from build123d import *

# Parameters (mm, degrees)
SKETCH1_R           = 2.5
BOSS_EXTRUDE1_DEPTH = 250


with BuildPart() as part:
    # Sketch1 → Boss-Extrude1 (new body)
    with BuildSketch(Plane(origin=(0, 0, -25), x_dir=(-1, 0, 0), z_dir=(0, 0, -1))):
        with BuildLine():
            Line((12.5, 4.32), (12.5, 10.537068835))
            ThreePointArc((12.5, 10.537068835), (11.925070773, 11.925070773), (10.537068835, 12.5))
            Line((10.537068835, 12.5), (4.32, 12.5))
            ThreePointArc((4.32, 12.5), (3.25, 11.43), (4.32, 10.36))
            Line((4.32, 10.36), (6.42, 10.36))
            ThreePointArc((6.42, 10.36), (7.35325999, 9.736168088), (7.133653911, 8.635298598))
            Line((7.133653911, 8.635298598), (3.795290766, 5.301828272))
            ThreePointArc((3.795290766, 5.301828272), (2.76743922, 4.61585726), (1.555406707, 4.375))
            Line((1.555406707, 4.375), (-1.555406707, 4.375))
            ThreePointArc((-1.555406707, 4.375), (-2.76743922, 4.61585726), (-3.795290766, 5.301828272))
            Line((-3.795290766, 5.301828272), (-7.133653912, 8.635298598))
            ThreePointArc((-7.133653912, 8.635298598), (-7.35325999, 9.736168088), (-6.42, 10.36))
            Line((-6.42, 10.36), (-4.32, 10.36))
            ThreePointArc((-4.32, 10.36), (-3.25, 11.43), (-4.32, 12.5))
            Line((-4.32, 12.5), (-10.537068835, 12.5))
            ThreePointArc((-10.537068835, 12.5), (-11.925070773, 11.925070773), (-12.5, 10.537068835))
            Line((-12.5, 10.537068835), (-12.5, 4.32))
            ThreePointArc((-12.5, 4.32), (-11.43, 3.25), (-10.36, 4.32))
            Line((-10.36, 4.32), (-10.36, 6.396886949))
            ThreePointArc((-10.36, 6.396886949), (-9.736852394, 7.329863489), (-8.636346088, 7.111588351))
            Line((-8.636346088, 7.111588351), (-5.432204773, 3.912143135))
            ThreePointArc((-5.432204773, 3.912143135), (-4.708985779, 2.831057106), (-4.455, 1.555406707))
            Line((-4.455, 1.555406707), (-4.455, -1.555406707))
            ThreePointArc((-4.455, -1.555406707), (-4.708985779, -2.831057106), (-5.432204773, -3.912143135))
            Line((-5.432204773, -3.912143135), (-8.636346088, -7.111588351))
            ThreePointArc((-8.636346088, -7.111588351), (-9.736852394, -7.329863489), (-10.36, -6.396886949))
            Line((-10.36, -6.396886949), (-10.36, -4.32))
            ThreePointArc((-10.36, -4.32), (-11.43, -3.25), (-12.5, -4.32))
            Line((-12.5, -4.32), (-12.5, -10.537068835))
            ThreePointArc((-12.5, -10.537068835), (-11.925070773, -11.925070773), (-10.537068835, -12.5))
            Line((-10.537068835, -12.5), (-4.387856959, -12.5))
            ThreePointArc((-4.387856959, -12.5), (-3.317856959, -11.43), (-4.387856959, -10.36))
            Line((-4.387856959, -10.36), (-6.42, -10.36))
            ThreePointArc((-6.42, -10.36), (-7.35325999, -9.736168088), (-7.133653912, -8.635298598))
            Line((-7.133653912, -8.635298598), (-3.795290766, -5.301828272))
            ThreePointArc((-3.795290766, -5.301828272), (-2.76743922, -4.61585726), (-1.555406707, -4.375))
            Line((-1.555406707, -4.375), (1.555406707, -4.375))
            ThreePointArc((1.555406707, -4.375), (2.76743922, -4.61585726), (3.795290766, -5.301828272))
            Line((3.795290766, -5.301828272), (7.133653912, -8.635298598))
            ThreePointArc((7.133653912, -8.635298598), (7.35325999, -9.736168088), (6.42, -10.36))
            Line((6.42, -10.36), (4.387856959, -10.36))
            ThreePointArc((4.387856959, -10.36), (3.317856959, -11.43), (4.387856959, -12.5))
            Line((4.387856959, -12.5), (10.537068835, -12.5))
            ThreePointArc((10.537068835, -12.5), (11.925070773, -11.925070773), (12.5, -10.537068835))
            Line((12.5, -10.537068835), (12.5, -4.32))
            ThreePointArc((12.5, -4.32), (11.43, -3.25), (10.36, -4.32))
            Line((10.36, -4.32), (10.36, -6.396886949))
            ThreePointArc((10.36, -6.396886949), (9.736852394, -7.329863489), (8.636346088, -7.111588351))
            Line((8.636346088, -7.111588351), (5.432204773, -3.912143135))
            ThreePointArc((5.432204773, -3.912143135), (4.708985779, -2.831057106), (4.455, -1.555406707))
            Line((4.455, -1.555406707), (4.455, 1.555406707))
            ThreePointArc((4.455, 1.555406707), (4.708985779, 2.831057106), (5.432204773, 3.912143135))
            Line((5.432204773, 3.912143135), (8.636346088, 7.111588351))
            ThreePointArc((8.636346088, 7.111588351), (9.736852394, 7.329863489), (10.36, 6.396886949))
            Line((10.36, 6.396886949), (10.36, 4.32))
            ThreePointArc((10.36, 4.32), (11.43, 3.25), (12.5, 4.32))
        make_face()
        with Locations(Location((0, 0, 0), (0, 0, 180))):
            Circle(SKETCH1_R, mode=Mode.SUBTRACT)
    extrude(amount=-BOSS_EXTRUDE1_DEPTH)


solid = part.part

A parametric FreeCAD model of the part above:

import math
import FreeCAD as App
import Part
import Sketcher
Q = App.Units.Quantity

doc = App.newDocument("Part")
body = doc.addObject("PartDesign::Body", "Body")

# Sketch on XY plane
sketch1 = body.newObject("Sketcher::SketchObject", "Sketch")
sketch1.AttachmentSupport = (doc.getObject("XY_Plane"), [""])
sketch1.MapMode = "FlatFace"
sketch1.AttachmentOffset = App.Placement(App.Vector(0, 0, -25), App.Rotation())
sketch1.addGeometry(Part.LineSegment(App.Vector(-12.5, 4.3, 0), App.Vector(-12.5, 10.5, 0)), False)
sketch1.addGeometry(Part.ArcOfCircle(Part.Circle(App.Vector(-10.5, 10.5, 0), App.Vector(0, 0, 1), 2), math.radians(90), math.radians(180)), False)
sketch1.addGeometry(Part.LineSegment(App.Vector(-10.5, 12.5, 0), App.Vector(-4.3, 12.5, 0)), False)
sketch1.addGeometry(Part.ArcOfCircle(Part.Circle(App.Vector(-4.3, 11.4, 0), App.Vector(0, 0, 1), 1.1), math.radians(-90), math.radians(90)), False)
sketch1.addGeometry(Part.LineSegment(App.Vector(-4.3, 10.4, 0), App.Vector(-6.4, 10.4, 0)), False)
sketch1.addGeometry(Part.ArcOfCircle(Part.Circle(App.Vector(-6.4, 9.4, 0), App.Vector(0, 0, 1), 1), math.radians(90), math.radians(225)), False)
sketch1.addGeometry(Part.LineSegment(App.Vector(-7.1, 8.6, 0), App.Vector(-3.8, 5.3, 0)), False)
sketch1.addGeometry(Part.ArcOfCircle(Part.Circle(App.Vector(-1.6, 7.5, 0), App.Vector(0, 0, 1), 3.2), math.radians(-135), math.radians(-90)), False)
sketch1.addGeometry(Part.LineSegment(App.Vector(-1.6, 4.4, 0), App.Vector(1.6, 4.4, 0)), False)
sketch1.addGeometry(Part.ArcOfCircle(Part.Circle(App.Vector(1.6, 7.5, 0), App.Vector(0, 0, 1), 3.2), math.radians(-90), math.radians(-45)), False)
sketch1.addGeometry(Part.LineSegment(App.Vector(3.8, 5.3, 0), App.Vector(7.1, 8.6, 0)), False)
sketch1.addGeometry(Part.ArcOfCircle(Part.Circle(App.Vector(6.4, 9.3, 0), App.Vector(0, 0, 1), 1), math.radians(-45), math.radians(90)), False)
sketch1.addGeometry(Part.LineSegment(App.Vector(6.4, 10.4, 0), App.Vector(4.3, 10.4, 0)), False)
sketch1.addGeometry(Part.ArcOfCircle(Part.Circle(App.Vector(4.3, 11.4, 0), App.Vector(0, 0, 1), 1.1), math.radians(90), math.radians(270)), False)
sketch1.addGeometry(Part.LineSegment(App.Vector(4.3, 12.5, 0), App.Vector(10.5, 12.5, 0)), False)
sketch1.addGeometry(Part.ArcOfCircle(Part.Circle(App.Vector(10.5, 10.5, 0), App.Vector(0, 0, 1), 2), math.radians(0), math.radians(90)), False)
sketch1.addGeometry(Part.LineSegment(App.Vector(12.5, 10.5, 0), App.Vector(12.5, 4.3, 0)), False)
sketch1.addGeometry(Part.ArcOfCircle(Part.Circle(App.Vector(11.4, 4.3, 0), App.Vector(0, 0, 1), 1.1), math.radians(180), math.radians(360)), False)
sketch1.addGeometry(Part.LineSegment(App.Vector(10.4, 4.3, 0), App.Vector(10.4, 6.4, 0)), False)
sketch1.addGeometry(Part.ArcOfCircle(Part.Circle(App.Vector(9.3, 6.4, 0), App.Vector(0, 0, 1), 1), math.radians(0), math.radians(135)), False)
sketch1.addGeometry(Part.LineSegment(App.Vector(8.6, 7.1, 0), App.Vector(5.4, 3.9, 0)), False)
sketch1.addGeometry(Part.ArcOfCircle(Part.Circle(App.Vector(7.8, 1.6, 0), App.Vector(0, 0, 1), 3.3), math.radians(135), math.radians(180)), False)
sketch1.addGeometry(Part.LineSegment(App.Vector(4.5, 1.6, 0), App.Vector(4.5, -1.6, 0)), False)
sketch1.addGeometry(Part.ArcOfCircle(Part.Circle(App.Vector(7.8, -1.6, 0), App.Vector(0, 0, 1), 3.3), math.radians(180), math.radians(225)), False)
sketch1.addGeometry(Part.LineSegment(App.Vector(5.4, -3.9, 0), App.Vector(8.6, -7.1, 0)), False)
sketch1.addGeometry(Part.ArcOfCircle(Part.Circle(App.Vector(9.3, -6.4, 0), App.Vector(0, 0, 1), 1), math.radians(-135), math.radians(0)), False)
sketch1.addGeometry(Part.LineSegment(App.Vector(10.4, -6.4, 0), App.Vector(10.4, -4.3, 0)), False)
sketch1.addGeometry(Part.ArcOfCircle(Part.Circle(App.Vector(11.4, -4.3, 0), App.Vector(0, 0, 1), 1.1), math.radians(0), math.radians(180)), False)
sketch1.addGeometry(Part.LineSegment(App.Vector(12.5, -4.3, 0), App.Vector(12.5, -10.5, 0)), False)
sketch1.addGeometry(Part.ArcOfCircle(Part.Circle(App.Vector(10.5, -10.5, 0), App.Vector(0, 0, 1), 2), math.radians(-90), math.radians(0)), False)
sketch1.addGeometry(Part.LineSegment(App.Vector(10.5, -12.5, 0), App.Vector(4.4, -12.5, 0)), False)
sketch1.addGeometry(Part.ArcOfCircle(Part.Circle(App.Vector(4.4, -11.4, 0), App.Vector(0, 0, 1), 1.1), math.radians(90), math.radians(270)), False)
sketch1.addGeometry(Part.LineSegment(App.Vector(4.4, -10.4, 0), App.Vector(6.4, -10.4, 0)), False)
sketch1.addGeometry(Part.ArcOfCircle(Part.Circle(App.Vector(6.4, -9.3, 0), App.Vector(0, 0, 1), 1), math.radians(-90), math.radians(45)), False)
sketch1.addGeometry(Part.LineSegment(App.Vector(7.1, -8.6, 0), App.Vector(3.8, -5.3, 0)), False)
sketch1.addGeometry(Part.ArcOfCircle(Part.Circle(App.Vector(1.6, -7.5, 0), App.Vector(0, 0, 1), 3.2), math.radians(45), math.radians(90)), False)
sketch1.addGeometry(Part.LineSegment(App.Vector(1.6, -4.4, 0), App.Vector(-1.6, -4.4, 0)), False)
sketch1.addGeometry(Part.ArcOfCircle(Part.Circle(App.Vector(-1.6, -7.5, 0), App.Vector(0, 0, 1), 3.2), math.radians(90), math.radians(135)), False)
sketch1.addGeometry(Part.LineSegment(App.Vector(-3.8, -5.3, 0), App.Vector(-7.1, -8.6, 0)), False)
sketch1.addGeometry(Part.ArcOfCircle(Part.Circle(App.Vector(-6.4, -9.3, 0), App.Vector(0, 0, 1), 1), math.radians(135), math.radians(270)), False)
sketch1.addGeometry(Part.LineSegment(App.Vector(-6.4, -10.4, 0), App.Vector(-4.4, -10.4, 0)), False)
sketch1.addGeometry(Part.ArcOfCircle(Part.Circle(App.Vector(-4.4, -11.4, 0), App.Vector(0, 0, 1), 1.1), math.radians(-90), math.radians(90)), False)
sketch1.addGeometry(Part.LineSegment(App.Vector(-4.4, -12.5, 0), App.Vector(-10.5, -12.5, 0)), False)
sketch1.addGeometry(Part.ArcOfCircle(Part.Circle(App.Vector(-10.5, -10.5, 0), App.Vector(0, 0, 1), 2), math.radians(180), math.radians(270)), False)
sketch1.addGeometry(Part.LineSegment(App.Vector(-12.5, -10.5, 0), App.Vector(-12.5, -4.3, 0)), False)
sketch1.addGeometry(Part.ArcOfCircle(Part.Circle(App.Vector(-11.4, -4.3, 0), App.Vector(0, 0, 1), 1.1), math.radians(0), math.radians(180)), False)
sketch1.addGeometry(Part.LineSegment(App.Vector(-10.4, -4.3, 0), App.Vector(-10.4, -6.4, 0)), False)
sketch1.addGeometry(Part.ArcOfCircle(Part.Circle(App.Vector(-9.3, -6.4, 0), App.Vector(0, 0, 1), 1), math.radians(-180), math.radians(-45)), False)
sketch1.addGeometry(Part.LineSegment(App.Vector(-8.6, -7.1, 0), App.Vector(-5.4, -3.9, 0)), False)
sketch1.addGeometry(Part.ArcOfCircle(Part.Circle(App.Vector(-7.8, -1.6, 0), App.Vector(0, 0, 1), 3.3), math.radians(-45), math.radians(0)), False)
sketch1.addGeometry(Part.LineSegment(App.Vector(-4.5, -1.6, 0), App.Vector(-4.5, 1.6, 0)), False)
sketch1.addGeometry(Part.ArcOfCircle(Part.Circle(App.Vector(-7.8, 1.6, 0), App.Vector(0, 0, 1), 3.3), math.radians(0), math.radians(45)), False)
sketch1.addGeometry(Part.LineSegment(App.Vector(-5.4, 3.9, 0), App.Vector(-8.6, 7.1, 0)), False)
sketch1.addGeometry(Part.ArcOfCircle(Part.Circle(App.Vector(-9.3, 6.4, 0), App.Vector(0, 0, 1), 1), math.radians(45), math.radians(180)), False)
sketch1.addGeometry(Part.LineSegment(App.Vector(-10.4, 6.4, 0), App.Vector(-10.4, 4.3, 0)), False)
sketch1.addGeometry(Part.ArcOfCircle(Part.Circle(App.Vector(-11.4, 4.3, 0), App.Vector(0, 0, 1), 1.1), math.radians(180), math.radians(360)), False)
sketch1.addGeometry(Part.Circle(App.Vector(0, 0, 0), App.Vector(0, 0, 1), 2.5), False)
sketch1.addConstraint(Sketcher.Constraint("Tangent", 0, 2, 1, 2))
sketch1.addConstraint(Sketcher.Constraint("Tangent", 1, 1, 2, 1))
sketch1.addConstraint(Sketcher.Constraint("Tangent", 2, 2, 3, 2))
sketch1.addConstraint(Sketcher.Constraint("Tangent", 3, 1, 4, 1))
sketch1.addConstraint(Sketcher.Constraint("Tangent", 4, 2, 5, 1))
sketch1.addConstraint(Sketcher.Constraint("Tangent", 5, 2, 6, 1))
sketch1.addConstraint(Sketcher.Constraint("Tangent", 6, 2, 7, 1))
sketch1.addConstraint(Sketcher.Constraint("Tangent", 7, 2, 8, 1))
sketch1.addConstraint(Sketcher.Constraint("Tangent", 8, 2, 9, 1))
sketch1.addConstraint(Sketcher.Constraint("Tangent", 9, 2, 10, 1))
sketch1.addConstraint(Sketcher.Constraint("Tangent", 10, 2, 11, 1))
sketch1.addConstraint(Sketcher.Constraint("Tangent", 11, 2, 12, 1))
sketch1.addConstraint(Sketcher.Constraint("Tangent", 12, 2, 13, 2))
sketch1.addConstraint(Sketcher.Constraint("Tangent", 13, 1, 14, 1))
sketch1.addConstraint(Sketcher.Constraint("Tangent", 14, 2, 15, 2))
sketch1.addConstraint(Sketcher.Constraint("Tangent", 15, 1, 16, 1))
sketch1.addConstraint(Sketcher.Constraint("Tangent", 16, 2, 17, 2))
sketch1.addConstraint(Sketcher.Constraint("Tangent", 17, 1, 18, 1))
sketch1.addConstraint(Sketcher.Constraint("Tangent", 18, 2, 19, 1))
sketch1.addConstraint(Sketcher.Constraint("Tangent", 19, 2, 20, 1))
sketch1.addConstraint(Sketcher.Constraint("Tangent", 20, 2, 21, 1))
sketch1.addConstraint(Sketcher.Constraint("Tangent", 21, 2, 22, 1))
sketch1.addConstraint(Sketcher.Constraint("Tangent", 22, 2, 23, 1))
sketch1.addConstraint(Sketcher.Constraint("Tangent", 23, 2, 24, 1))
sketch1.addConstraint(Sketcher.Constraint("Tangent", 24, 2, 25, 1))
sketch1.addConstraint(Sketcher.Constraint("Tangent", 25, 2, 26, 1))
sketch1.addConstraint(Sketcher.Constraint("Tangent", 26, 2, 27, 2))
sketch1.addConstraint(Sketcher.Constraint("Tangent", 27, 1, 28, 1))
sketch1.addConstraint(Sketcher.Constraint("Tangent", 28, 2, 29, 2))
sketch1.addConstraint(Sketcher.Constraint("Tangent", 29, 1, 30, 1))
sketch1.addConstraint(Sketcher.Constraint("Tangent", 30, 2, 31, 2))
sketch1.addConstraint(Sketcher.Constraint("Tangent", 31, 1, 32, 1))
sketch1.addConstraint(Sketcher.Constraint("Tangent", 32, 2, 33, 1))
sketch1.addConstraint(Sketcher.Constraint("Tangent", 33, 2, 34, 1))
sketch1.addConstraint(Sketcher.Constraint("Tangent", 34, 2, 35, 1))
sketch1.addConstraint(Sketcher.Constraint("Tangent", 35, 2, 36, 1))
sketch1.addConstraint(Sketcher.Constraint("Tangent", 36, 2, 37, 1))
sketch1.addConstraint(Sketcher.Constraint("Tangent", 37, 2, 38, 1))
sketch1.addConstraint(Sketcher.Constraint("Tangent", 38, 2, 39, 1))
sketch1.addConstraint(Sketcher.Constraint("Tangent", 39, 2, 40, 1))
sketch1.addConstraint(Sketcher.Constraint("Tangent", 40, 2, 41, 2))
sketch1.addConstraint(Sketcher.Constraint("Tangent", 41, 1, 42, 1))
sketch1.addConstraint(Sketcher.Constraint("Tangent", 42, 2, 43, 2))
sketch1.addConstraint(Sketcher.Constraint("Tangent", 43, 1, 44, 1))
sketch1.addConstraint(Sketcher.Constraint("Tangent", 44, 2, 45, 2))
sketch1.addConstraint(Sketcher.Constraint("Tangent", 45, 1, 46, 1))
sketch1.addConstraint(Sketcher.Constraint("Tangent", 46, 2, 47, 1))
sketch1.addConstraint(Sketcher.Constraint("Tangent", 47, 2, 48, 1))
sketch1.addConstraint(Sketcher.Constraint("Tangent", 48, 2, 49, 1))
sketch1.addConstraint(Sketcher.Constraint("Tangent", 49, 2, 50, 1))
sketch1.addConstraint(Sketcher.Constraint("Tangent", 50, 2, 51, 1))
sketch1.addConstraint(Sketcher.Constraint("Tangent", 51, 2, 52, 1))
sketch1.addConstraint(Sketcher.Constraint("Tangent", 52, 2, 53, 1))
sketch1.addConstraint(Sketcher.Constraint("Tangent", 53, 2, 54, 1))
sketch1.addConstraint(Sketcher.Constraint("Tangent", 54, 2, 55, 2))
sketch1.addConstraint(Sketcher.Constraint("Tangent", 55, 1, 0, 1))
sketch1.addConstraint(Sketcher.Constraint("Vertical", 0))
sketch1.addConstraint(Sketcher.Constraint("Horizontal", 2))
sketch1.addConstraint(Sketcher.Constraint("Horizontal", 4))
sketch1.addConstraint(Sketcher.Constraint("Horizontal", 8))
sketch1.addConstraint(Sketcher.Constraint("Horizontal", 12))
sketch1.addConstraint(Sketcher.Constraint("Horizontal", 14))
sketch1.addConstraint(Sketcher.Constraint("Vertical", 16))
sketch1.addConstraint(Sketcher.Constraint("Vertical", 18))
sketch1.addConstraint(Sketcher.Constraint("Vertical", 22))
sketch1.addConstraint(Sketcher.Constraint("Vertical", 26))
sketch1.addConstraint(Sketcher.Constraint("Vertical", 28))
sketch1.addConstraint(Sketcher.Constraint("Horizontal", 30))
sketch1.addConstraint(Sketcher.Constraint("Horizontal", 32))
sketch1.addConstraint(Sketcher.Constraint("Horizontal", 36))
sketch1.addConstraint(Sketcher.Constraint("Horizontal", 40))
sketch1.addConstraint(Sketcher.Constraint("Horizontal", 42))
sketch1.addConstraint(Sketcher.Constraint("Vertical", 44))
sketch1.addConstraint(Sketcher.Constraint("Vertical", 46))
sketch1.addConstraint(Sketcher.Constraint("Vertical", 50))
sketch1.addConstraint(Sketcher.Constraint("Vertical", 54))
sketch1.addConstraint(Sketcher.Constraint("Coincident", 56, 3, -1, 1))
sketch1.addConstraint(Sketcher.Constraint("Equal", 7, 9))
sketch1.addConstraint(Sketcher.Constraint("Equal", 5, 11))
sketch1.addConstraint(Sketcher.Constraint("Equal", 3, 13))
sketch1.addConstraint(Sketcher.Constraint("Equal", 1, 15))
sketch1.addConstraint(Sketcher.Constraint("Equal", 13, 17))
sketch1.addConstraint(Sketcher.Constraint("Equal", 11, 19))
sketch1.addConstraint(Sketcher.Constraint("Equal", 21, 23))
sketch1.addConstraint(Sketcher.Constraint("Equal", 19, 25))
sketch1.addConstraint(Sketcher.Constraint("Equal", 17, 27))
sketch1.addConstraint(Sketcher.Constraint("Equal", 15, 29))
sketch1.addConstraint(Sketcher.Constraint("Equal", 27, 31))
sketch1.addConstraint(Sketcher.Constraint("Equal", 25, 33))
sketch1.addConstraint(Sketcher.Constraint("Equal", 9, 35))
sketch1.addConstraint(Sketcher.Constraint("Equal", 35, 37))
sketch1.addConstraint(Sketcher.Constraint("Equal", 33, 39))
sketch1.addConstraint(Sketcher.Constraint("Equal", 31, 41))
sketch1.addConstraint(Sketcher.Constraint("Equal", 29, 43))
sketch1.addConstraint(Sketcher.Constraint("Equal", 41, 45))
sketch1.addConstraint(Sketcher.Constraint("Equal", 39, 47))
sketch1.addConstraint(Sketcher.Constraint("Equal", 23, 49))
sketch1.addConstraint(Sketcher.Constraint("Equal", 49, 51))
sketch1.addConstraint(Sketcher.Constraint("Equal", 47, 53))
sketch1.addConstraint(Sketcher.Constraint("Equal", 45, 55))
sketch1.addConstraint(Sketcher.Constraint("Symmetric", 1, 3, 29, 3, -1, 1))
sketch1.addConstraint(Sketcher.Constraint("Symmetric", 7, 3, 35, 3, -1, 1))
sketch1.addConstraint(Sketcher.Constraint("Symmetric", 11, 3, 39, 3, -1, 1))
sketch1.addConstraint(Sketcher.Constraint("Symmetric", 17, 3, 45, 3, -1, 1))
sketch1.addConstraint(Sketcher.Constraint("Symmetric", 21, 3, 49, 3, -1, 1))
sketch1.addConstraint(Sketcher.Constraint("Symmetric", 23, 2, 51, 2, -1, 1))
sketch1.addConstraint(Sketcher.Constraint("Symmetric", 5, 3, 11, 3, -2))
sketch1.addConstraint(Sketcher.Constraint("Symmetric", 27, 3, 45, 3, -2))
sketch1.addConstraint(Sketcher.Constraint("Symmetric", 34, 2, 37, 2, -2))
sketch1.addConstraint(Sketcher.Constraint("Symmetric", 24, 2, 47, 2, -2))
sketch1.addConstraint(Sketcher.Constraint("Parallel", 10, 20))
sketch1.addConstraint(Sketcher.Constraint("Parallel", 6, 24))
sketch1.addConstraint(Sketcher.Constraint("Parallel", 20, 38))
sketch1.addConstraint(Sketcher.Constraint("Horizontal", 17, 3, 55, 3))
sketch1.addConstraint(Sketcher.Constraint("Equal", 4, 12))
sketch1.addConstraint(Sketcher.Constraint("Equal", 32, 40))
sketch1.addConstraint(Sketcher.Constraint("Equal", 14, 0))
sketch1.addConstraint(Sketcher.Constraint("Equal", 36, 22))
sketch1.addConstraint(Sketcher.Constraint("Diameter", 56, Q("5 mm")))
sketch1.addConstraint(Sketcher.Constraint("Radius", 3, Q("1.07 mm")))
sketch1.addConstraint(Sketcher.Constraint("Radius", 5, Q("1.01 mm")))
sketch1.addConstraint(Sketcher.Constraint("Radius", 7, Q("3.17 mm")))
sketch1.addConstraint(Sketcher.Constraint("DistanceX", 4, 2, 4, 1, Q("2.1 mm")))
sketch1.addConstraint(Sketcher.Constraint("DistanceX", 0, 2, -1, 1, Q("12.5 mm")))
sketch1.addConstraint(Sketcher.Constraint("DistanceY", -1, 1, 1, 1, Q("12.5 mm")))
sketch1.addConstraint(Sketcher.Constraint("DistanceX", 3, 3, -1, 1, Q("4.32 mm")))
sketch1.addConstraint(Sketcher.Constraint("Radius", 1, Q("1.962931 mm")))
sketch1.addConstraint(Sketcher.Constraint("DistanceY", -1, 1, 7, 3, Q("7.545 mm")))
sketch1.addConstraint(Sketcher.Constraint("DistanceX", -1, 1, 21, 2, Q("4.455 mm")))
sketch1.addConstraint(Sketcher.Constraint("Radius", 21, Q("3.330487 mm")))
sketch1.addConstraint(Sketcher.Constraint("Distance", 6, Q("4.7177 mm")))
sketch1.addConstraint(Sketcher.Constraint("DistanceX", 30, 2, 30, 1, Q("6.149212 mm")))
pad1 = body.newObject("PartDesign::Pad", "Pad")
pad1.Profile = sketch1
pad1.Length = 250

doc.recompute()
